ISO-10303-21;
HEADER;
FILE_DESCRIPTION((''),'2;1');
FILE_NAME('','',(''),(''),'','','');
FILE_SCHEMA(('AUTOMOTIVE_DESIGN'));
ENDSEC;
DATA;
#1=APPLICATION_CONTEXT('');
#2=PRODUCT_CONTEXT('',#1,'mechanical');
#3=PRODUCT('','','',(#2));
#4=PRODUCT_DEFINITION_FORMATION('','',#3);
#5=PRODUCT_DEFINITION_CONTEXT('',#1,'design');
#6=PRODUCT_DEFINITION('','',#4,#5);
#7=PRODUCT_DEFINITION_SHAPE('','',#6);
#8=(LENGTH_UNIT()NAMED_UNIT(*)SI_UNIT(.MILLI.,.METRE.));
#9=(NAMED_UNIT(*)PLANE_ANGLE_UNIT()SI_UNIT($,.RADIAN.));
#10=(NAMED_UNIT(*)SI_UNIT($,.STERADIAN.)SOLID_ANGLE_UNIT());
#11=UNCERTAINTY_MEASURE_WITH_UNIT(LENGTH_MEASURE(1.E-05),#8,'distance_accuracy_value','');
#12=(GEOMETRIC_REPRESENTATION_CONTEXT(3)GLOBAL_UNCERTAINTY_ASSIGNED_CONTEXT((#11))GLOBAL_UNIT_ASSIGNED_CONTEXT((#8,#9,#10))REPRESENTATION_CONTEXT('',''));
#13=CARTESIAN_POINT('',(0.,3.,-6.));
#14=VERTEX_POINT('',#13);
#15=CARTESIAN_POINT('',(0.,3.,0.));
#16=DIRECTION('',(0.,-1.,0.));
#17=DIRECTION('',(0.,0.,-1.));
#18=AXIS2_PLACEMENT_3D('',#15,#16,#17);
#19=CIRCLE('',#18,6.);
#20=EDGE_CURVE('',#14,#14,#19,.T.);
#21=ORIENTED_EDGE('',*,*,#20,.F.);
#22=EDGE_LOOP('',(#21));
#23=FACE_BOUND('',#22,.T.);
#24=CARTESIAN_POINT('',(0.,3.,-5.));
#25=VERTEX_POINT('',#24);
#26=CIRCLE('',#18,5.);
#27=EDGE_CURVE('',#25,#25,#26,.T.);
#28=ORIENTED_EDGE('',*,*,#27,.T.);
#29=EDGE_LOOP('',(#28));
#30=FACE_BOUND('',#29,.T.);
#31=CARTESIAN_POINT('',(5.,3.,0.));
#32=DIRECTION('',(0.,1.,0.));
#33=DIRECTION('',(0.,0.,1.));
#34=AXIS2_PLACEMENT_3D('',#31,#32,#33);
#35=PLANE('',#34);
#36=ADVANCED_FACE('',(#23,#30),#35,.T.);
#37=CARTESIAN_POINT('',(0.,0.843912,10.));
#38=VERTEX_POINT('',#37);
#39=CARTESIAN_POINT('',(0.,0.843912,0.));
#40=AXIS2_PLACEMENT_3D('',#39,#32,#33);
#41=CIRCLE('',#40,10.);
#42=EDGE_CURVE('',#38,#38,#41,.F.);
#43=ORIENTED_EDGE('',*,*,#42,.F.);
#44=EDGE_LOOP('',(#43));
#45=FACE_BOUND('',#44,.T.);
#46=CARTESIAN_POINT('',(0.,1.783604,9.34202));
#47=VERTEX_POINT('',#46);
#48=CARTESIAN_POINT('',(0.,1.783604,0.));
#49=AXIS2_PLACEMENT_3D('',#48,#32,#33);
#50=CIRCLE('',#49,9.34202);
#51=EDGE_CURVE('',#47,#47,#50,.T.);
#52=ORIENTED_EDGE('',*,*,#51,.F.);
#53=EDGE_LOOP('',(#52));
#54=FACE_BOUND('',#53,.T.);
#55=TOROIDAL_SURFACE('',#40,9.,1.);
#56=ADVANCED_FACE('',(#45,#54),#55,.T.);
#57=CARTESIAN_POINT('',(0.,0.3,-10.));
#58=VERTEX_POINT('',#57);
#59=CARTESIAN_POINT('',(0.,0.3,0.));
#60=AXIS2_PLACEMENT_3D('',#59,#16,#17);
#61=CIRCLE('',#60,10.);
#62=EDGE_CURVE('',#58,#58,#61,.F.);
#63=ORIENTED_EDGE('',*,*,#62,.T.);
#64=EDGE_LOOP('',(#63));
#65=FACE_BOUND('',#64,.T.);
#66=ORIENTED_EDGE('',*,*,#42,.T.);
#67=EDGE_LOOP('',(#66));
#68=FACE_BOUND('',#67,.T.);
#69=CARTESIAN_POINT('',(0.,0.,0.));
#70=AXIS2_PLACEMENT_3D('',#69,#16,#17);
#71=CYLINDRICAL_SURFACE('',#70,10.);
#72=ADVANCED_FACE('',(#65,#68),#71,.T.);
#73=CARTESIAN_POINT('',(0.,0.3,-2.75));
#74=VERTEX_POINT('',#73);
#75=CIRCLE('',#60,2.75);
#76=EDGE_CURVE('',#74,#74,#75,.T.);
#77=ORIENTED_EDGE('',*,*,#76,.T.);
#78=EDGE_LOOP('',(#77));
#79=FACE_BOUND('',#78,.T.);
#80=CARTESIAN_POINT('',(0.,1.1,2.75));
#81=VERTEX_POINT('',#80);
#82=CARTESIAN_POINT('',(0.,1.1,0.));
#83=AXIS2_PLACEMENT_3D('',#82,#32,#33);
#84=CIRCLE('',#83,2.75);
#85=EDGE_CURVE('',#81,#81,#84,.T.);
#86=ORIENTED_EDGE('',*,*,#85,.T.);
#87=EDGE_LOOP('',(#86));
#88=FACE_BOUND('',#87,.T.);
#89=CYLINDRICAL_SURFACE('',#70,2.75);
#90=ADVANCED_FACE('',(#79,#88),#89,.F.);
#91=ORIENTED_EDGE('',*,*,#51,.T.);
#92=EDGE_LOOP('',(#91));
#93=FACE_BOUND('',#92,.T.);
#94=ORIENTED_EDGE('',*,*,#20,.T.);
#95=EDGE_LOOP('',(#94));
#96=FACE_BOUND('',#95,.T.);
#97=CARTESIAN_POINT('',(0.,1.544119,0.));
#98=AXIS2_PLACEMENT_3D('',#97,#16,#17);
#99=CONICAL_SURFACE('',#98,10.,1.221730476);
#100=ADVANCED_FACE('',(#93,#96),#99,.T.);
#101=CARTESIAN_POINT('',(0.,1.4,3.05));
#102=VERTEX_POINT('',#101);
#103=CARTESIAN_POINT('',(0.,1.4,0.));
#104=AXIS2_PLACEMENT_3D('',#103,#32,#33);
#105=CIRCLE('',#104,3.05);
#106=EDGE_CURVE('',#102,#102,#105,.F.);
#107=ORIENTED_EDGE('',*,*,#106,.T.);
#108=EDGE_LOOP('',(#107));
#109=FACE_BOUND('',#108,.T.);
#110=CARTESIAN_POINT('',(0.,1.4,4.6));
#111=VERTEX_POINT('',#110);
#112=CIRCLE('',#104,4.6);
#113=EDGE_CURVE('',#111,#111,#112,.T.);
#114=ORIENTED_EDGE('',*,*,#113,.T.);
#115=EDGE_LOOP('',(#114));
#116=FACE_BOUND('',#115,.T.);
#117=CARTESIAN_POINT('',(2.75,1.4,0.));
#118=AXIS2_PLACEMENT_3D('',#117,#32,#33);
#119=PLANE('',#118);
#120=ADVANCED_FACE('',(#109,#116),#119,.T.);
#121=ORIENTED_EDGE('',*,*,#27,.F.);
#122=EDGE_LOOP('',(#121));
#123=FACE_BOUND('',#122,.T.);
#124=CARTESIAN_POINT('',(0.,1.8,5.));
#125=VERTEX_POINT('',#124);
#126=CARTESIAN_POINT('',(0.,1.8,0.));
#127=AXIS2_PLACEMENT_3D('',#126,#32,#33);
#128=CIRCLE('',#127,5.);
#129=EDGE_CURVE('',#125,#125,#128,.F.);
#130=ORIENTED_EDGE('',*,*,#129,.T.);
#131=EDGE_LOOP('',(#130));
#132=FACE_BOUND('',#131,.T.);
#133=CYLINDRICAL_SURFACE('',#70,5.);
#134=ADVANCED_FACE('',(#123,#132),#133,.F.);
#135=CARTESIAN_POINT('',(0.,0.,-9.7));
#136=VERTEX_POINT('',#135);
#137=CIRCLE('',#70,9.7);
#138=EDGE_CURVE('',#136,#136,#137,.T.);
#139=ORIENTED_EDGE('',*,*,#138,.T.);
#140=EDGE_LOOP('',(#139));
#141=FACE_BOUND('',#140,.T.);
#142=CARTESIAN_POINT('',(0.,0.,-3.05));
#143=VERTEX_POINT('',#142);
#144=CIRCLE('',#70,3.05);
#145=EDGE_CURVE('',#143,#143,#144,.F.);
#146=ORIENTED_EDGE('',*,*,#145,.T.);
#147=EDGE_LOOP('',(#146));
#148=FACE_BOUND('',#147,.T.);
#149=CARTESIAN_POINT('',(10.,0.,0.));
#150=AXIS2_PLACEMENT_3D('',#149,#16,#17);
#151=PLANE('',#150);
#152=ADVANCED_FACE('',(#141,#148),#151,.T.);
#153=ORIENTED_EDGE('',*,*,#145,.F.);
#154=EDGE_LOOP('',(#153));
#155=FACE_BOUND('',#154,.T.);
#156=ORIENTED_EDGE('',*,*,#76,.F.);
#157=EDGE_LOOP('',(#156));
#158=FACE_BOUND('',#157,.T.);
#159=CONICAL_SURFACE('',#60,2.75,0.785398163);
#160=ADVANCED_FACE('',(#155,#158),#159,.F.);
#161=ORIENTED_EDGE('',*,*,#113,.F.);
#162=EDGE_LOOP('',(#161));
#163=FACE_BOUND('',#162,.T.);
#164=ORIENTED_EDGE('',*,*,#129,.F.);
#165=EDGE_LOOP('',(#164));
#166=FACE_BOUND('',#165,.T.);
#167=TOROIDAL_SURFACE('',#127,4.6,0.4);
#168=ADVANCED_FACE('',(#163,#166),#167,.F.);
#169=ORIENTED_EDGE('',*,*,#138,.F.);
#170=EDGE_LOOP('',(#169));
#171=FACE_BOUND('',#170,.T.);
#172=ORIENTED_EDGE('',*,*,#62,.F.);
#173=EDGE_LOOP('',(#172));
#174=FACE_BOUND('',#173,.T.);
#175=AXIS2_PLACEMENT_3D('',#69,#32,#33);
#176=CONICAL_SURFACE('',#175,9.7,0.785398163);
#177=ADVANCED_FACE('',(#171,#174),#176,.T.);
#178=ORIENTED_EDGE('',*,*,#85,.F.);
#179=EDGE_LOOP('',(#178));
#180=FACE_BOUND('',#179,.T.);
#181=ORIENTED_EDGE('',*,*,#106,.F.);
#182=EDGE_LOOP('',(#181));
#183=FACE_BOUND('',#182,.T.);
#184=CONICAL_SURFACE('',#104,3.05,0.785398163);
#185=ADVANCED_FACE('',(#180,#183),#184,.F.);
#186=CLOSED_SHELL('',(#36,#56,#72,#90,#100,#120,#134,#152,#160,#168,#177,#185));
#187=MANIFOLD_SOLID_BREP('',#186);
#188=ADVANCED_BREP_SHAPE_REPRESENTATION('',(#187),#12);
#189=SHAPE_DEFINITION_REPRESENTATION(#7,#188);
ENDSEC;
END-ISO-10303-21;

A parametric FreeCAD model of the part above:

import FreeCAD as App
import Part
import Sketcher
from FreeCAD import Vector
Q = App.Units.Quantity


def edges_at(feature, points):
    """Names of the edges that pass closest to the given points."""
    edges = feature.Shape.Edges
    near = lambda p: min(range(len(edges)), key=lambda i: edges[i].distToShape(Part.Vertex(*p))[0])
    return sorted({f"Edge{near(p) + 1}" for p in points})

doc = App.newDocument("Part")
body = doc.addObject("PartDesign::Body", "Body")

sketch1 = doc.addObject("Sketcher::SketchObject", "Sketch")
body.addObject(sketch1)
sketch1.AttachmentSupport = (doc.XY_Plane, [""])
sketch1.MapMode = "FlatFace"
sketch1.addGeometry(Part.LineSegment(Vector(2.75, 1.4, 0), Vector(2.75, 0, 0)), False)
sketch1.addGeometry(Part.LineSegment(Vector(2.75, 0, 0), Vector(10, 0, 0)), False)
sketch1.addGeometry(Part.LineSegment(Vector(10, 0, 0), Vector(10, 1.544119, 0)), False)
sketch1.addGeometry(Part.LineSegment(Vector(10, 1.544119, 0), Vector(6, 3, 0)), False)
sketch1.addGeometry(Part.LineSegment(Vector(6, 3, 0), Vector(5, 3, 0)), False)
sketch1.addGeometry(Part.LineSegment(Vector(5, 3, 0), Vector(5, 1.4, 0)), False)
sketch1.addGeometry(Part.LineSegment(Vector(5, 1.4, 0), Vector(2.75, 1.4, 0)), False)
sketch1.addConstraint(Sketcher.Constraint("Coincident", 0, 2, 1, 1))
sketch1.addConstraint(Sketcher.Constraint("Coincident", 1, 2, 2, 1))
sketch1.addConstraint(Sketcher.Constraint("Coincident", 2, 2, 3, 1))
sketch1.addConstraint(Sketcher.Constraint("Coincident", 3, 2, 4, 1))
sketch1.addConstraint(Sketcher.Constraint("Coincident", 4, 2, 5, 1))
sketch1.addConstraint(Sketcher.Constraint("Coincident", 5, 2, 6, 1))
sketch1.addConstraint(Sketcher.Constraint("Coincident", 6, 2, 0, 1))
sketch1.addConstraint(Sketcher.Constraint("Vertical", 0))
sketch1.addConstraint(Sketcher.Constraint("Horizontal", 1))
sketch1.addConstraint(Sketcher.Constraint("Vertical", 2))
sketch1.addConstraint(Sketcher.Constraint("Horizontal", 4))
sketch1.addConstraint(Sketcher.Constraint("Vertical", 5))
sketch1.addConstraint(Sketcher.Constraint("Horizontal", 6))
sketch1.addConstraint(Sketcher.Constraint("PointOnObject", 0, 2, -1))
sketch1.addConstraint(Sketcher.Constraint("DistanceX", 4, 2, 4, 1, 1.0))
sketch1.addConstraint(Sketcher.Constraint("Angle", 3, Q("160 deg")))
sketch1.addConstraint(Sketcher.Constraint("DistanceY", 0, 2, 0, 1, 1.4))
sketch1.addConstraint(Sketcher.Constraint("DistanceY", 5, 2, 5, 1, 1.6))
sketch1.addConstraint(Sketcher.Constraint("DistanceX", -1, 1, 1, 2, 10.0))
sketch1.addConstraint(Sketcher.Constraint("DistanceX", -1, 1, 3, 2, 6.0))
sketch1.addConstraint(Sketcher.Constraint("DistanceX", 1, 1, 1, 2, 7.25))
revolution = doc.addObject("PartDesign::Revolution", "Revolution")
body.addObject(revolution)
revolution.Profile = sketch1
revolution.ReferenceAxis = (sketch1, ["V_Axis"])
revolution.Angle = 360
doc.recompute()

fillet = doc.addObject("PartDesign::Fillet", "Fillet")
body.addObject(fillet)
fillet.Base = (revolution, edges_at(revolution, [(0, 1.544, 10)]))
fillet.Radius = 1
doc.recompute()

fillet2 = doc.addObject("PartDesign::Fillet", "Fillet001")
body.addObject(fillet2)
fillet2.Base = (fillet, edges_at(fillet, [(0, 1.4, 5)]))
fillet2.Radius = 0.4
doc.recompute()

chamfer = doc.addObject("PartDesign::Chamfer", "Chamfer")
body.addObject(chamfer)
chamfer.Base = (fillet2, edges_at(fillet2, [(0, 0, 10), (0, 1.4, 2.75), (0, 0, 2.75)]))
chamfer.Size = 0.3

doc.recompute()
